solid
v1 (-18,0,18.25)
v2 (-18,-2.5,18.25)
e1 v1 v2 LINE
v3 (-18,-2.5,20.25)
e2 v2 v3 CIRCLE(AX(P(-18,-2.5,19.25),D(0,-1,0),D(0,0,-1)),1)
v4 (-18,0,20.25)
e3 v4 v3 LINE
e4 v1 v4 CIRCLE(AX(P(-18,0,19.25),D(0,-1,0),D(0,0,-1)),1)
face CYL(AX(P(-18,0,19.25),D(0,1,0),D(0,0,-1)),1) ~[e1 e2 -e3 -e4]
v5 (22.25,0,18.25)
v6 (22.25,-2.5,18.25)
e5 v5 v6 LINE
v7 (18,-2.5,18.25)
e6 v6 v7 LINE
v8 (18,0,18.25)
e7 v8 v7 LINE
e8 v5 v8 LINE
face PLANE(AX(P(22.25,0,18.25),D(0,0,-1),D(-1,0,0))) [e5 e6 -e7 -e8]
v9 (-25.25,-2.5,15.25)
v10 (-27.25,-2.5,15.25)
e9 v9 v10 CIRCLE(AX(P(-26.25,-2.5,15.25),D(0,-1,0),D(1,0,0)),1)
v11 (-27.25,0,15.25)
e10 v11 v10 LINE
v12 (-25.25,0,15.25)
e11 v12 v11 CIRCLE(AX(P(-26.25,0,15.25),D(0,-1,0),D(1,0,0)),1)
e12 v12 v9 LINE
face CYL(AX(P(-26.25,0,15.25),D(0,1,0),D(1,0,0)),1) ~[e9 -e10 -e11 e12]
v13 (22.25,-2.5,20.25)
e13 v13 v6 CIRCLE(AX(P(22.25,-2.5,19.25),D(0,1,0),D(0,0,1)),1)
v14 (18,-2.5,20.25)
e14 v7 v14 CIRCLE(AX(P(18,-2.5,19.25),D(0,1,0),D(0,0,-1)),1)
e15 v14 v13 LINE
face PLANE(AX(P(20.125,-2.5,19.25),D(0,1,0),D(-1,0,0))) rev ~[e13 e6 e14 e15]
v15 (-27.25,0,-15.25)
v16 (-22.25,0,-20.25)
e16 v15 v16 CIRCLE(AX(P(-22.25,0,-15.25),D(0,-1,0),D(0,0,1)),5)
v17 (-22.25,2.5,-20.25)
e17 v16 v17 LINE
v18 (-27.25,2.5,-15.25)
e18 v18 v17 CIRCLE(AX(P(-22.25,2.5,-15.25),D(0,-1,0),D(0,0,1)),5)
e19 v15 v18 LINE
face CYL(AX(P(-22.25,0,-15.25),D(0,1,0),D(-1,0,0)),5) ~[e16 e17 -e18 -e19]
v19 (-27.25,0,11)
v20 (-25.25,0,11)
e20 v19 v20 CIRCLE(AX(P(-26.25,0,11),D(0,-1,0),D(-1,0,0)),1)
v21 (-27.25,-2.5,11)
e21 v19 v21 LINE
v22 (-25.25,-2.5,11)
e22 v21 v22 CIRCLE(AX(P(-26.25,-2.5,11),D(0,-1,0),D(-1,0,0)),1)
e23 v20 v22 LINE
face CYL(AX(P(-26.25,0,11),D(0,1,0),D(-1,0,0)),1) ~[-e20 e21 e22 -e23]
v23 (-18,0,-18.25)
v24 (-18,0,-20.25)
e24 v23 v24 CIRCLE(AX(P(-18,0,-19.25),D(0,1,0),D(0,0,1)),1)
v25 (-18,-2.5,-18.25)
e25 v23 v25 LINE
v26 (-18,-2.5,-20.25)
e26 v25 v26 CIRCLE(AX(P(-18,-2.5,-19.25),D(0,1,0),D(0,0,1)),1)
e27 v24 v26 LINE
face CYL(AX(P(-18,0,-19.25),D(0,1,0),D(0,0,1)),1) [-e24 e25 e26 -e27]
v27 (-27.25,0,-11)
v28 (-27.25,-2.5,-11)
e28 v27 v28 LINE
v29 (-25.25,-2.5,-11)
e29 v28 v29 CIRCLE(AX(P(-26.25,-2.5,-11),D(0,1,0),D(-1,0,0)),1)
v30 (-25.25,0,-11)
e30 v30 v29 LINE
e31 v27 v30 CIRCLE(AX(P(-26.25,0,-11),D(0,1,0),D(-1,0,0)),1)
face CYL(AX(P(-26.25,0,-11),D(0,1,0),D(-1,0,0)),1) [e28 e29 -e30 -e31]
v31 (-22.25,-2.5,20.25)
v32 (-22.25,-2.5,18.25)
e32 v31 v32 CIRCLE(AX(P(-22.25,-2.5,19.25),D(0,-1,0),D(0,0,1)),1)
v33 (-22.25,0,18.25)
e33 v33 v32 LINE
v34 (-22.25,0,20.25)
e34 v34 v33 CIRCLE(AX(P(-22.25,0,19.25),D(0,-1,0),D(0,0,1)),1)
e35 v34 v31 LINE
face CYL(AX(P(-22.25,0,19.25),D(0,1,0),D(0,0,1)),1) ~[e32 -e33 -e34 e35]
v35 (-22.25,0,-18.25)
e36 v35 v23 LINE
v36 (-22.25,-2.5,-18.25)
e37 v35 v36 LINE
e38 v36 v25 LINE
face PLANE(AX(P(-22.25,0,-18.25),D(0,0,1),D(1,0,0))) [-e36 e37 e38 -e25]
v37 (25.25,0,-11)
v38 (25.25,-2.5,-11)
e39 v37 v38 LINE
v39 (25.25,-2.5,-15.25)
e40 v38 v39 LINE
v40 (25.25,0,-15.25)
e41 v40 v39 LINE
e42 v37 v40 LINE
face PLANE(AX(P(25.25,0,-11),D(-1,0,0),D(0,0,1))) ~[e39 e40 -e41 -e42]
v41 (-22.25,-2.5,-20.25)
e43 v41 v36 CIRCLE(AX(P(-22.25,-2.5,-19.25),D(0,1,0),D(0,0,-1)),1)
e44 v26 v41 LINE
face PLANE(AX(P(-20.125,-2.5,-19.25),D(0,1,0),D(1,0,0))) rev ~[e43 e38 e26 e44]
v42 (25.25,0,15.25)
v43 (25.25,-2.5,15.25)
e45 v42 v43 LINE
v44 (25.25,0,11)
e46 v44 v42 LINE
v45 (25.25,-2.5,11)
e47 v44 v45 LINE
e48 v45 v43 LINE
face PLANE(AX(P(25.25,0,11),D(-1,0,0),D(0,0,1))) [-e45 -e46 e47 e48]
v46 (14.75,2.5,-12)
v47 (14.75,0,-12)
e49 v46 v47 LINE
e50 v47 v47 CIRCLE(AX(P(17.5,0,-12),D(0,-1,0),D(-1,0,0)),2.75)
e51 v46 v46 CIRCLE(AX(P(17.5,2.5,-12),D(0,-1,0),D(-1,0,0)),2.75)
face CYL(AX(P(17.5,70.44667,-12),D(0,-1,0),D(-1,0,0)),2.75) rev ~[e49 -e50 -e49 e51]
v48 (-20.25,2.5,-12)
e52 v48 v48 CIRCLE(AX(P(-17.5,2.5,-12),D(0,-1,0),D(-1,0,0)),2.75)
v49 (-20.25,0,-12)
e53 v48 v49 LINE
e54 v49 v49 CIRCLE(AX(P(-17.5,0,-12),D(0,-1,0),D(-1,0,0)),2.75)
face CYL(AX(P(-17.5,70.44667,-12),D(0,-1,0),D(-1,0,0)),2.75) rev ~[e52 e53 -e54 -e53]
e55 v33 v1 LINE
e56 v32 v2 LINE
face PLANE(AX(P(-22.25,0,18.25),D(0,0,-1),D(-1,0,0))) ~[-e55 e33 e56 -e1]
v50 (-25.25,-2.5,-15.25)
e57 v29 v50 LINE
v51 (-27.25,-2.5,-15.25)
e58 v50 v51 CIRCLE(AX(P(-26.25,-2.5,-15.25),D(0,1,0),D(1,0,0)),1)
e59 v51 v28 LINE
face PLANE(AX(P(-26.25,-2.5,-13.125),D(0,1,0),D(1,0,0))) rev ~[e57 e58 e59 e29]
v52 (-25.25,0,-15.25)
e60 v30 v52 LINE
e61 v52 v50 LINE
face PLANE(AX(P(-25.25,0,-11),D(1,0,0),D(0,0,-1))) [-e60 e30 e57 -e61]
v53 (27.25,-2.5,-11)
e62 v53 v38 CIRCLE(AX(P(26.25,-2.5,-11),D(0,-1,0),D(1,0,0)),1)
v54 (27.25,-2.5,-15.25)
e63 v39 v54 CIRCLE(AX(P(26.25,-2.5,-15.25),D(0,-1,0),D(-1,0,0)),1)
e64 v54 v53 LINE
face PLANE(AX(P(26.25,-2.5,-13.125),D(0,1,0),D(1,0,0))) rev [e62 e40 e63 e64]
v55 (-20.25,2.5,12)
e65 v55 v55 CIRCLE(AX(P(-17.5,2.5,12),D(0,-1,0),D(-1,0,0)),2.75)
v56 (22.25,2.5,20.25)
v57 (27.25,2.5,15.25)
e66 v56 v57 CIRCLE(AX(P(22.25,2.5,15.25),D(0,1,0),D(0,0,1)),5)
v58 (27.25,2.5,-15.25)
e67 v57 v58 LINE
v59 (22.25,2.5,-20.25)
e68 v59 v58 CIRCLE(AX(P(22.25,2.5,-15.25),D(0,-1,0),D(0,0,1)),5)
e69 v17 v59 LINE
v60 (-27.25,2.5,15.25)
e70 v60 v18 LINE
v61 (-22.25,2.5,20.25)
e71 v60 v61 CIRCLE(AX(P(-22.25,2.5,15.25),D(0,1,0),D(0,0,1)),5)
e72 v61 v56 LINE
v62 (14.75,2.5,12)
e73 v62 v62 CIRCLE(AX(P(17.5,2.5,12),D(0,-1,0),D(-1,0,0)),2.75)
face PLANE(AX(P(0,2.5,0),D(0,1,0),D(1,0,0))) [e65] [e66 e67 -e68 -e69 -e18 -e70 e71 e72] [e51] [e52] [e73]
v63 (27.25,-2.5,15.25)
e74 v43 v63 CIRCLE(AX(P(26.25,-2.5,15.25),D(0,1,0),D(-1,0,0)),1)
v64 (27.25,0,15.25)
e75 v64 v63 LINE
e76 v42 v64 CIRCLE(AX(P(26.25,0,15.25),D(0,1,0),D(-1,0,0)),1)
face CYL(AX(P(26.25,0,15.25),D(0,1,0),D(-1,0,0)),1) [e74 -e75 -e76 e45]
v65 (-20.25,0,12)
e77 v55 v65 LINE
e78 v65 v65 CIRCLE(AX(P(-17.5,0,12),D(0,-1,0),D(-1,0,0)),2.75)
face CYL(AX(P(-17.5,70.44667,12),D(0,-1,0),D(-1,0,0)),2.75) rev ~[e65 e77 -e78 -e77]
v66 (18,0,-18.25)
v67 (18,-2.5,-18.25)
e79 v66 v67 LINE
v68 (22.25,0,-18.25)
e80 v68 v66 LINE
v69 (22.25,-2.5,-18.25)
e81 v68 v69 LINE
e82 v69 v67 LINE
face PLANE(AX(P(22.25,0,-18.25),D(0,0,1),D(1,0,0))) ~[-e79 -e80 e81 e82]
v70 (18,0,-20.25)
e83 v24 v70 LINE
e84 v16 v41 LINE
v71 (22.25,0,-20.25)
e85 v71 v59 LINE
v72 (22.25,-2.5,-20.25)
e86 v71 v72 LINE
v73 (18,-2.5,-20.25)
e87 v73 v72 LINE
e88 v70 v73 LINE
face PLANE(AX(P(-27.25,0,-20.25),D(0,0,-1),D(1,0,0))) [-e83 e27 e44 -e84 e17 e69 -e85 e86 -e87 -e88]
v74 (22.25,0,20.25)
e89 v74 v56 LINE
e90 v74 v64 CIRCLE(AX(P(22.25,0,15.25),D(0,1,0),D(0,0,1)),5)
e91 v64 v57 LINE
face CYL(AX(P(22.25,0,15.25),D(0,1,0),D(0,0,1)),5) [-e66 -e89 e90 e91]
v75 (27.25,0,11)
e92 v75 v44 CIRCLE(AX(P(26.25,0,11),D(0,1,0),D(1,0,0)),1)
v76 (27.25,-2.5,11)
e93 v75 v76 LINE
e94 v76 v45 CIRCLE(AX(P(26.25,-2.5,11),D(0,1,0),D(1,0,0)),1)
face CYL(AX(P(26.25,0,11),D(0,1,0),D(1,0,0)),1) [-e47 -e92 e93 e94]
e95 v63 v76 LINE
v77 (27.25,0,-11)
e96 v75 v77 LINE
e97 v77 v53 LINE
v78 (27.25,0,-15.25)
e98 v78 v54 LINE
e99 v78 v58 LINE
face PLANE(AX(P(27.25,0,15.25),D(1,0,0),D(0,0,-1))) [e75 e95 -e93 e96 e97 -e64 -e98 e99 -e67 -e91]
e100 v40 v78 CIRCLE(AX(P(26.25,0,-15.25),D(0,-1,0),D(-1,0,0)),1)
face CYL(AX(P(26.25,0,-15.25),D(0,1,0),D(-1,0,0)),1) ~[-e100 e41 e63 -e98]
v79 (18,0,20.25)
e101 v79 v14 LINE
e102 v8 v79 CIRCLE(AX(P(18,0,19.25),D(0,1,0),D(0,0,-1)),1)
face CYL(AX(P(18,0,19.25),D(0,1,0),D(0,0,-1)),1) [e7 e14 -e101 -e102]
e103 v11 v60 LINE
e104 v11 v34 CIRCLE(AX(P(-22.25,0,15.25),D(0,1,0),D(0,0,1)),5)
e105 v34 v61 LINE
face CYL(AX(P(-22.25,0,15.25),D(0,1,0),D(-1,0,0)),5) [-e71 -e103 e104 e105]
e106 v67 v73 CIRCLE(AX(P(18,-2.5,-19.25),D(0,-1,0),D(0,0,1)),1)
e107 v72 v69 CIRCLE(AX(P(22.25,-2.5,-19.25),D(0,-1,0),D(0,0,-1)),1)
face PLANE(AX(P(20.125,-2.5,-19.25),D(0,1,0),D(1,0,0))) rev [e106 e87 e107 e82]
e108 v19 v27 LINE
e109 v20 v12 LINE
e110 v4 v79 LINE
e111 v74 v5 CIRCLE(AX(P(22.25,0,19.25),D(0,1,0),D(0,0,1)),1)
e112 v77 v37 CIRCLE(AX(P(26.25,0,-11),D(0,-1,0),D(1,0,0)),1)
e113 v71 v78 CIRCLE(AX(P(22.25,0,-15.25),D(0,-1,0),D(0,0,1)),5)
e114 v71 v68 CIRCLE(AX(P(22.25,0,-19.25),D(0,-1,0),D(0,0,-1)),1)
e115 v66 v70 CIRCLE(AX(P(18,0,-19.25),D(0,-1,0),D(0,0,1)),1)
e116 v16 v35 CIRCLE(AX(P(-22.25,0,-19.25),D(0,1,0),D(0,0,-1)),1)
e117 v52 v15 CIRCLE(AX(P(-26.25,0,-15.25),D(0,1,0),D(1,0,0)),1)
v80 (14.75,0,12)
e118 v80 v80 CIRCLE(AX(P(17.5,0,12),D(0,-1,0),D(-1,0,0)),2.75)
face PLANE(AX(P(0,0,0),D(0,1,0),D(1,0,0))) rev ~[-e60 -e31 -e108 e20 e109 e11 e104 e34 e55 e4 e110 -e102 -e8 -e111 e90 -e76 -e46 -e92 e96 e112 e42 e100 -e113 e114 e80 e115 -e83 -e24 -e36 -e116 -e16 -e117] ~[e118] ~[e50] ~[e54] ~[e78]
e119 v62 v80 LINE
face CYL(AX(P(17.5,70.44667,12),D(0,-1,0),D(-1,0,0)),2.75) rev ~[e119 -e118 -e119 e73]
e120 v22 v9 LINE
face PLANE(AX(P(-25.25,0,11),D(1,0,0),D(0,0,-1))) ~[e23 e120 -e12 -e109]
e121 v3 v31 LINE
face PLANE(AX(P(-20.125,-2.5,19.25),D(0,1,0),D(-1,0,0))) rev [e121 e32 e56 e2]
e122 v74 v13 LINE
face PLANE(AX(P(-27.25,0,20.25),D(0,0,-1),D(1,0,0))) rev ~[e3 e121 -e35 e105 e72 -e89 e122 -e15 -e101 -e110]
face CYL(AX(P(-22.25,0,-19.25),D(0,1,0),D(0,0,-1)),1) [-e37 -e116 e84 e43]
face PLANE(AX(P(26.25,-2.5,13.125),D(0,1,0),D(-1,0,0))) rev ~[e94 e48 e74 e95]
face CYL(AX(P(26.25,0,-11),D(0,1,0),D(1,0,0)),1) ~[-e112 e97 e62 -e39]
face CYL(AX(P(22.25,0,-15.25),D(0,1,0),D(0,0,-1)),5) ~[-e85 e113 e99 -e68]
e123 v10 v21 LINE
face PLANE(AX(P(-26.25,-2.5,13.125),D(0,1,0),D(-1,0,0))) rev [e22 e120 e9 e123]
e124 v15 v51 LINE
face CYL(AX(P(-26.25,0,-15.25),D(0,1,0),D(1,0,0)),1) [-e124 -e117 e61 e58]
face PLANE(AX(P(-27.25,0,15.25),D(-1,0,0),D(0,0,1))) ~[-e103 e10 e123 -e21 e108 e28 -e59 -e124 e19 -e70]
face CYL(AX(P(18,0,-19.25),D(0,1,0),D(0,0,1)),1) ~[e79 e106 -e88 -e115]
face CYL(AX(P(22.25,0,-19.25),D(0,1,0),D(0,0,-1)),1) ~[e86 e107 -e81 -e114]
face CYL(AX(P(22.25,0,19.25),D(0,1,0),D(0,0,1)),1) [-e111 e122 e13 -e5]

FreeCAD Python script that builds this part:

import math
import FreeCAD as App
import Part
import Sketcher
from FreeCAD import Vector


def edges_at(feature, points):
    """Names of the edges that pass closest to the given points."""
    edges = feature.Shape.Edges
    near = lambda p: min(range(len(edges)), key=lambda i: edges[i].distToShape(Part.Vertex(*p))[0])
    return sorted({f"Edge{near(p) + 1}" for p in points})


def add_polygon(sketch, points):
    """Adds a closed chain of lines whose ends are joined by coincident constraints."""
    first, n = sketch.GeometryCount, len(points)
    for a, b in zip(points, points[1:] + points[:1]):
        sketch.addGeometry(Part.LineSegment(App.Vector(*a, 0), App.Vector(*b, 0)), False)
    for i in range(n):
        sketch.addConstraint(Sketcher.Constraint("Coincident", first + i, 2, first + (i + 1) % n, 1))

doc = App.newDocument("Part")
body = doc.addObject("PartDesign::Body", "Body")

# Sketch on XZ plane
sketch1 = doc.addObject("Sketcher::SketchObject", "Sketch")
body.addObject(sketch1)
sketch1.AttachmentSupport = (doc.XZ_Plane, [""])
sketch1.MapMode = "FlatFace"
add_polygon(sketch1, [(-27, -20), (-27, 20), (27, 20), (27, -20)])  # lines 0-3
sketch1.addConstraint(Sketcher.Constraint("Vertical", 0))
sketch1.addConstraint(Sketcher.Constraint("Horizontal", 1))
sketch1.addConstraint(Sketcher.Constraint("Vertical", 2))
sketch1.addConstraint(Sketcher.Constraint("Horizontal", 3))
sketch1.addConstraint(Sketcher.Constraint("Symmetric", 0, 2, 2, 2, -1, 1))
sketch1.addConstraint(Sketcher.Constraint("DistanceX", 1, 1, 1, 2, 54.5))
sketch1.addConstraint(Sketcher.Constraint("DistanceY", 0, 1, 0, 2, 40.5))
pad1 = doc.addObject("PartDesign::Pad", "Pad")
body.addObject(pad1)
pad1.Profile = sketch1
pad1.Length = 2.5
pad1.Reversed = True

# Sketch on XZ plane
sketch2 = doc.addObject("Sketcher::SketchObject", "Sketch001")
body.addObject(sketch2)
sketch2.AttachmentSupport = (doc.XZ_Plane, [""])
sketch2.MapMode = "FlatFace"
sketch2.AttachmentOffset = App.Placement(Vector(0, 0, -2.5), App.Rotation())
sketch2.addGeometry(Part.Circle(Vector(17.5, 12, 0), Vector(0, 0, 1), 2.8), False)
sketch2.addGeometry(Part.Circle(Vector(-17.5, -12, 0), Vector(0, 0, 1), 2.8), False)
sketch2.addGeometry(Part.Circle(Vector(-17.5, 12, 0), Vector(0, 0, 1), 2.8), False)
sketch2.addGeometry(Part.Circle(Vector(17.5, -12, 0), Vector(0, 0, 1), 2.8), False)
sketch2.addConstraint(Sketcher.Constraint("Equal", 0, 1))
sketch2.addConstraint(Sketcher.Constraint("Equal", 1, 2))
sketch2.addConstraint(Sketcher.Constraint("Equal", 2, 3))
sketch2.addConstraint(Sketcher.Constraint("Symmetric", 0, 3, 1, 3, -1, 1))
sketch2.addConstraint(Sketcher.Constraint("Symmetric", 2, 3, 3, 3, -1, 1))
sketch2.addConstraint(Sketcher.Constraint("Symmetric", 0, 3, 2, 3, -2))
sketch2.addConstraint(Sketcher.Constraint("Diameter", 0, 5.5))
sketch2.addConstraint(Sketcher.Constraint("DistanceY", -1, 1, 0, 3, 12.0))
sketch2.addConstraint(Sketcher.Constraint("DistanceX", 1, 3, 0, 3, 35.0))
doc.recompute()
hole = doc.addObject("PartDesign::Hole", "Hole")
body.addObject(hole)
hole.Profile = sketch2
hole.ThreadType = "None"
hole.Diameter = 5.5
hole.DepthType = "ThroughAll"
hole.Reversed = True
doc.recompute()

fillet = doc.addObject("PartDesign::Fillet", "Fillet")
body.addObject(fillet)
fillet.Base = (hole, edges_at(hole, [
    (-27.25, 1.25, -20.25),
    (27.25, 1.25, -20.25),
    (27.25, 1.25, 20.25),
    (-27.25, 1.25, 20.25),
]))
fillet.Radius = 5

# Sketch on XZ plane
sketch3 = doc.addObject("Sketcher::SketchObject", "Sketch002")
body.addObject(sketch3)
sketch3.AttachmentSupport = (doc.XZ_Plane, [""])
sketch3.MapMode = "FlatFace"
sketch3.addGeometry(Part.LineSegment(Vector(-25.2, -11, 0), Vector(-25.2, -15.2, 0)), False)
sketch3.addGeometry(Part.ArcOfCircle(Part.Circle(Vector(-26.2, -15.2, 0), Vector(0, 0, 1), 1), math.radians(180), math.radians(360)), False)
sketch3.addGeometry(Part.LineSegment(Vector(-27.2, -15.2, 0), Vector(-27.2, -11, 0)), False)
sketch3.addGeometry(Part.ArcOfCircle(Part.Circle(Vector(-26.2, -11, 0), Vector(0, 0, 1), 1), math.radians(0), math.radians(180)), False)
sketch3.addGeometry(Part.LineSegment(Vector(-22.2, -18.2, 0), Vector(-18, -18.2, 0)), False)
sketch3.addGeometry(Part.ArcOfCircle(Part.Circle(Vector(-18, -19.2, 0), Vector(0, 0, 1), 1), math.radians(-90), math.radians(90)), False)
sketch3.addGeometry(Part.LineSegment(Vector(-18, -20.2, 0), Vector(-22.2, -20.2, 0)), False)
sketch3.addGeometry(Part.ArcOfCircle(Part.Circle(Vector(-22.2, -19.2, 0), Vector(0, 0, 1), 1), math.radians(90), math.radians(270)), False)
sketch3.addConstraint(Sketcher.Constraint("Tangent", 0, 2, 1, 2))
sketch3.addConstraint(Sketcher.Constraint("Tangent", 1, 1, 2, 1))
sketch3.addConstraint(Sketcher.Constraint("Tangent", 2, 2, 3, 2))
sketch3.addConstraint(Sketcher.Constraint("Tangent", 3, 1, 0, 1))
sketch3.addConstraint(Sketcher.Constraint("Tangent", 4, 2, 5, 2))
sketch3.addConstraint(Sketcher.Constraint("Tangent", 5, 1, 6, 1))
sketch3.addConstraint(Sketcher.Constraint("Tangent", 6, 2, 7, 2))
sketch3.addConstraint(Sketcher.Constraint("Tangent", 7, 1, 4, 1))
sketch3.addConstraint(Sketcher.Constraint("Vertical", 0))
sketch3.addConstraint(Sketcher.Constraint("Vertical", 2))
sketch3.addConstraint(Sketcher.Constraint("Horizontal", 4))
sketch3.addConstraint(Sketcher.Constraint("Horizontal", 6))
sketch3.addConstraint(Sketcher.Constraint("Equal", 3, 5))
sketch3.addConstraint(Sketcher.Constraint("Equal", 6, 0))
sketch3.addConstraint(Sketcher.Constraint("Radius", 1, 1.0))
sketch3.addConstraint(Sketcher.Constraint("DistanceY", 3, 3, -1, 1, 11.0))
sketch3.addConstraint(Sketcher.Constraint("DistanceX", 5, 3, -1, 1, 18.0))
sketch3.addConstraint(Sketcher.Constraint("DistanceY", 5, 3, 1, 3, 4.0))
sketch3.addConstraint(Sketcher.Constraint("DistanceX", 1, 3, 7, 3, 4.0))
sketch3.addConstraint(Sketcher.Constraint("DistanceX", 4, 1, 4, 2, 4.25))
pad2 = doc.addObject("PartDesign::Pad", "Pad001")
body.addObject(pad2)
pad2.Profile = sketch3
pad2.Length = 2.5
doc.recompute()

mirrored = doc.addObject("PartDesign::Mirrored", "Mirrored")
body.addObject(mirrored)
mirrored.Originals = [pad2]
mirrored.MirrorPlane = (doc.XY_Plane, [""])
body.Tip = mirrored
doc.recompute()

mirrored2 = doc.addObject("PartDesign::Mirrored", "Mirrored001")
body.addObject(mirrored2)
mirrored2.Originals = [pad2]
mirrored2.MirrorPlane = (doc.YZ_Plane, [""])
body.Tip = mirrored2

# Sketch on XZ plane
sketch4 = doc.addObject("Sketcher::SketchObject", "Sketch003")
body.addObject(sketch4)
sketch4.AttachmentSupport = (doc.XZ_Plane, [""])
sketch4.MapMode = "FlatFace"
sketch4.addGeometry(Part.LineSegment(Vector(25.2, 11, 0), Vector(25.2, 15.2, 0)), False)
sketch4.addGeometry(Part.ArcOfCircle(Part.Circle(Vector(26.2, 15.2, 0), Vector(0, 0, 1), 1), math.radians(0), math.radians(180)), False)
sketch4.addGeometry(Part.LineSegment(Vector(27.2, 15.2, 0), Vector(27.2, 11, 0)), False)
sketch4.addGeometry(Part.ArcOfCircle(Part.Circle(Vector(26.2, 11, 0), Vector(0, 0, 1), 1), math.radians(180), math.radians(360)), False)
sketch4.addGeometry(Part.LineSegment(Vector(22.2, 18.2, 0), Vector(18, 18.2, 0)), False)
sketch4.addGeometry(Part.ArcOfCircle(Part.Circle(Vector(18, 19.2, 0), Vector(0, 0, 1), 1), math.radians(90), math.radians(270)), False)
sketch4.addGeometry(Part.LineSegment(Vector(18, 20.2, 0), Vector(22.2, 20.2, 0)), False)
sketch4.addGeometry(Part.ArcOfCircle(Part.Circle(Vector(22.2, 19.2, 0), Vector(0, 0, 1), 1), math.radians(-90), math.radians(90)), False)
sketch4.addConstraint(Sketcher.Constraint("Tangent", 0, 2, 1, 2))
sketch4.addConstraint(Sketcher.Constraint("Tangent", 1, 1, 2, 1))
sketch4.addConstraint(Sketcher.Constraint("Tangent", 2, 2, 3, 2))
sketch4.addConstraint(Sketcher.Constraint("Tangent", 3, 1, 0, 1))
sketch4.addConstraint(Sketcher.Constraint("Tangent", 4, 2, 5, 2))
sketch4.addConstraint(Sketcher.Constraint("Tangent", 5, 1, 6, 1))
sketch4.addConstraint(Sketcher.Constraint("Tangent", 6, 2, 7, 2))
sketch4.addConstraint(Sketcher.Constraint("Tangent", 7, 1, 4, 1))
sketch4.addConstraint(Sketcher.Constraint("Vertical", 0))
sketch4.addConstraint(Sketcher.Constraint("Vertical", 2))
sketch4.addConstraint(Sketcher.Constraint("Horizontal", 4))
sketch4.addConstraint(Sketcher.Constraint("Horizontal", 6))
sketch4.addConstraint(Sketcher.Constraint("Equal", 3, 5))
sketch4.addConstraint(Sketcher.Constraint("Equal", 6, 0))
sketch4.addConstraint(Sketcher.Constraint("Radius", 1, 1.0))
sketch4.addConstraint(Sketcher.Constraint("DistanceY", -1, 1, 3, 3, 11.0))
sketch4.addConstraint(Sketcher.Constraint("DistanceX", -1, 1, 5, 3, 18.0))
sketch4.addConstraint(Sketcher.Constraint("DistanceY", 1, 3, 5, 3, 4.0))
sketch4.addConstraint(Sketcher.Constraint("DistanceX", 7, 3, 1, 3, 4.0))
sketch4.addConstraint(Sketcher.Constraint("DistanceX", 4, 2, 4, 1, 4.25))
pad3 = doc.addObject("PartDesign::Pad", "Pad002")
body.addObject(pad3)
pad3.Profile = sketch4
pad3.Length = 2.5

doc.recompute()
